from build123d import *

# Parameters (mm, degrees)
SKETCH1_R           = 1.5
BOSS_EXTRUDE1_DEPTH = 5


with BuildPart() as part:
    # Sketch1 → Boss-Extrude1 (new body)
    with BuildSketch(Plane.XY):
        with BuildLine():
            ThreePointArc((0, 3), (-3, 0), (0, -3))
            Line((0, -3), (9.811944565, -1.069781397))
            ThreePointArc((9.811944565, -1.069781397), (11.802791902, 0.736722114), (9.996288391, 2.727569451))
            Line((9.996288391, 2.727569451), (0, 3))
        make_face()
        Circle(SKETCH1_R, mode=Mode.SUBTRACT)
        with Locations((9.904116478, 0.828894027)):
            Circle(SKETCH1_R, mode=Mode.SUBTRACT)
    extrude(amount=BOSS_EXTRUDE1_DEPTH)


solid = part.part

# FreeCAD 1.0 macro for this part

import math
import FreeCAD as App
import Part
import Sketcher
from FreeCAD import Vector

doc = App.newDocument("Part")
body = doc.addObject("PartDesign::Body", "Body")

# Sketch on XY plane
sketch1 = body.newObject("Sketcher::SketchObject", "Sketch")
sketch1.AttachmentSupport = (doc.getObject("XY_Plane"), [""])
sketch1.MapMode = "FlatFace"
sketch1.addGeometry([
    Part.ArcOfCircle(Part.Circle(Vector(0, 0, 0), Vector(0, 0, 1), 3), math.radians(90), math.radians(270)),  # 0
    Part.LineSegment(Vector(0, -3, 0), Vector(9.8, -1.1, 0)),  # 1
    Part.ArcOfCircle(Part.Circle(Vector(9.9, 0.8, 0), Vector(0, 0, 1), 1.9), math.radians(-93), math.radians(87)),  # 2
    Part.LineSegment(Vector(10, 2.7, 0), Vector(0, 3, 0)),  # 3
    Part.Circle(Vector(0, 0, 0), Vector(0, 0, 1), 1.5),  # 4
    Part.Circle(Vector(9.9, 0.8, 0), Vector(0, 0, 1), 1.5),  # 5
], False)
sketch1.addConstraint([
    Sketcher.Constraint("Coincident", 0, 2, 1, 1),
    Sketcher.Constraint("Coincident", 1, 2, 2, 1),
    Sketcher.Constraint("Coincident", 2, 2, 3, 1),
    Sketcher.Constraint("Coincident", 3, 2, 0, 1),
    Sketcher.Constraint("Coincident", 0, 3, -1, 1),
    Sketcher.Constraint("Coincident", 4, 3, -1, 1),
    Sketcher.Constraint("Coincident", 5, 3, 2, 3),
    Sketcher.Constraint("Equal", 4, 5),
    Sketcher.Constraint("PointOnObject", 0, 2, -2),
    Sketcher.Constraint("PointOnObject", 3, 2, -2),
    Sketcher.Constraint("Equal", 1, 3),
    Sketcher.Constraint("Diameter", 4, 3.0),
    Sketcher.Constraint("Radius", 0, 3.0),
    Sketcher.Constraint("Distance", 1, 10.0),
    Sketcher.Constraint("Radius", 2, 1.900911),
    Sketcher.Constraint("DistanceY", 1, 2, -1, 1, 1.069781),
    Sketcher.Constraint("DistanceX", 1, 2, 2, 3, 0.092172),
])
pad1 = body.newObject("PartDesign::Pad", "Pad")
pad1.Profile = sketch1
pad1.Length = 5

doc.recompute()
